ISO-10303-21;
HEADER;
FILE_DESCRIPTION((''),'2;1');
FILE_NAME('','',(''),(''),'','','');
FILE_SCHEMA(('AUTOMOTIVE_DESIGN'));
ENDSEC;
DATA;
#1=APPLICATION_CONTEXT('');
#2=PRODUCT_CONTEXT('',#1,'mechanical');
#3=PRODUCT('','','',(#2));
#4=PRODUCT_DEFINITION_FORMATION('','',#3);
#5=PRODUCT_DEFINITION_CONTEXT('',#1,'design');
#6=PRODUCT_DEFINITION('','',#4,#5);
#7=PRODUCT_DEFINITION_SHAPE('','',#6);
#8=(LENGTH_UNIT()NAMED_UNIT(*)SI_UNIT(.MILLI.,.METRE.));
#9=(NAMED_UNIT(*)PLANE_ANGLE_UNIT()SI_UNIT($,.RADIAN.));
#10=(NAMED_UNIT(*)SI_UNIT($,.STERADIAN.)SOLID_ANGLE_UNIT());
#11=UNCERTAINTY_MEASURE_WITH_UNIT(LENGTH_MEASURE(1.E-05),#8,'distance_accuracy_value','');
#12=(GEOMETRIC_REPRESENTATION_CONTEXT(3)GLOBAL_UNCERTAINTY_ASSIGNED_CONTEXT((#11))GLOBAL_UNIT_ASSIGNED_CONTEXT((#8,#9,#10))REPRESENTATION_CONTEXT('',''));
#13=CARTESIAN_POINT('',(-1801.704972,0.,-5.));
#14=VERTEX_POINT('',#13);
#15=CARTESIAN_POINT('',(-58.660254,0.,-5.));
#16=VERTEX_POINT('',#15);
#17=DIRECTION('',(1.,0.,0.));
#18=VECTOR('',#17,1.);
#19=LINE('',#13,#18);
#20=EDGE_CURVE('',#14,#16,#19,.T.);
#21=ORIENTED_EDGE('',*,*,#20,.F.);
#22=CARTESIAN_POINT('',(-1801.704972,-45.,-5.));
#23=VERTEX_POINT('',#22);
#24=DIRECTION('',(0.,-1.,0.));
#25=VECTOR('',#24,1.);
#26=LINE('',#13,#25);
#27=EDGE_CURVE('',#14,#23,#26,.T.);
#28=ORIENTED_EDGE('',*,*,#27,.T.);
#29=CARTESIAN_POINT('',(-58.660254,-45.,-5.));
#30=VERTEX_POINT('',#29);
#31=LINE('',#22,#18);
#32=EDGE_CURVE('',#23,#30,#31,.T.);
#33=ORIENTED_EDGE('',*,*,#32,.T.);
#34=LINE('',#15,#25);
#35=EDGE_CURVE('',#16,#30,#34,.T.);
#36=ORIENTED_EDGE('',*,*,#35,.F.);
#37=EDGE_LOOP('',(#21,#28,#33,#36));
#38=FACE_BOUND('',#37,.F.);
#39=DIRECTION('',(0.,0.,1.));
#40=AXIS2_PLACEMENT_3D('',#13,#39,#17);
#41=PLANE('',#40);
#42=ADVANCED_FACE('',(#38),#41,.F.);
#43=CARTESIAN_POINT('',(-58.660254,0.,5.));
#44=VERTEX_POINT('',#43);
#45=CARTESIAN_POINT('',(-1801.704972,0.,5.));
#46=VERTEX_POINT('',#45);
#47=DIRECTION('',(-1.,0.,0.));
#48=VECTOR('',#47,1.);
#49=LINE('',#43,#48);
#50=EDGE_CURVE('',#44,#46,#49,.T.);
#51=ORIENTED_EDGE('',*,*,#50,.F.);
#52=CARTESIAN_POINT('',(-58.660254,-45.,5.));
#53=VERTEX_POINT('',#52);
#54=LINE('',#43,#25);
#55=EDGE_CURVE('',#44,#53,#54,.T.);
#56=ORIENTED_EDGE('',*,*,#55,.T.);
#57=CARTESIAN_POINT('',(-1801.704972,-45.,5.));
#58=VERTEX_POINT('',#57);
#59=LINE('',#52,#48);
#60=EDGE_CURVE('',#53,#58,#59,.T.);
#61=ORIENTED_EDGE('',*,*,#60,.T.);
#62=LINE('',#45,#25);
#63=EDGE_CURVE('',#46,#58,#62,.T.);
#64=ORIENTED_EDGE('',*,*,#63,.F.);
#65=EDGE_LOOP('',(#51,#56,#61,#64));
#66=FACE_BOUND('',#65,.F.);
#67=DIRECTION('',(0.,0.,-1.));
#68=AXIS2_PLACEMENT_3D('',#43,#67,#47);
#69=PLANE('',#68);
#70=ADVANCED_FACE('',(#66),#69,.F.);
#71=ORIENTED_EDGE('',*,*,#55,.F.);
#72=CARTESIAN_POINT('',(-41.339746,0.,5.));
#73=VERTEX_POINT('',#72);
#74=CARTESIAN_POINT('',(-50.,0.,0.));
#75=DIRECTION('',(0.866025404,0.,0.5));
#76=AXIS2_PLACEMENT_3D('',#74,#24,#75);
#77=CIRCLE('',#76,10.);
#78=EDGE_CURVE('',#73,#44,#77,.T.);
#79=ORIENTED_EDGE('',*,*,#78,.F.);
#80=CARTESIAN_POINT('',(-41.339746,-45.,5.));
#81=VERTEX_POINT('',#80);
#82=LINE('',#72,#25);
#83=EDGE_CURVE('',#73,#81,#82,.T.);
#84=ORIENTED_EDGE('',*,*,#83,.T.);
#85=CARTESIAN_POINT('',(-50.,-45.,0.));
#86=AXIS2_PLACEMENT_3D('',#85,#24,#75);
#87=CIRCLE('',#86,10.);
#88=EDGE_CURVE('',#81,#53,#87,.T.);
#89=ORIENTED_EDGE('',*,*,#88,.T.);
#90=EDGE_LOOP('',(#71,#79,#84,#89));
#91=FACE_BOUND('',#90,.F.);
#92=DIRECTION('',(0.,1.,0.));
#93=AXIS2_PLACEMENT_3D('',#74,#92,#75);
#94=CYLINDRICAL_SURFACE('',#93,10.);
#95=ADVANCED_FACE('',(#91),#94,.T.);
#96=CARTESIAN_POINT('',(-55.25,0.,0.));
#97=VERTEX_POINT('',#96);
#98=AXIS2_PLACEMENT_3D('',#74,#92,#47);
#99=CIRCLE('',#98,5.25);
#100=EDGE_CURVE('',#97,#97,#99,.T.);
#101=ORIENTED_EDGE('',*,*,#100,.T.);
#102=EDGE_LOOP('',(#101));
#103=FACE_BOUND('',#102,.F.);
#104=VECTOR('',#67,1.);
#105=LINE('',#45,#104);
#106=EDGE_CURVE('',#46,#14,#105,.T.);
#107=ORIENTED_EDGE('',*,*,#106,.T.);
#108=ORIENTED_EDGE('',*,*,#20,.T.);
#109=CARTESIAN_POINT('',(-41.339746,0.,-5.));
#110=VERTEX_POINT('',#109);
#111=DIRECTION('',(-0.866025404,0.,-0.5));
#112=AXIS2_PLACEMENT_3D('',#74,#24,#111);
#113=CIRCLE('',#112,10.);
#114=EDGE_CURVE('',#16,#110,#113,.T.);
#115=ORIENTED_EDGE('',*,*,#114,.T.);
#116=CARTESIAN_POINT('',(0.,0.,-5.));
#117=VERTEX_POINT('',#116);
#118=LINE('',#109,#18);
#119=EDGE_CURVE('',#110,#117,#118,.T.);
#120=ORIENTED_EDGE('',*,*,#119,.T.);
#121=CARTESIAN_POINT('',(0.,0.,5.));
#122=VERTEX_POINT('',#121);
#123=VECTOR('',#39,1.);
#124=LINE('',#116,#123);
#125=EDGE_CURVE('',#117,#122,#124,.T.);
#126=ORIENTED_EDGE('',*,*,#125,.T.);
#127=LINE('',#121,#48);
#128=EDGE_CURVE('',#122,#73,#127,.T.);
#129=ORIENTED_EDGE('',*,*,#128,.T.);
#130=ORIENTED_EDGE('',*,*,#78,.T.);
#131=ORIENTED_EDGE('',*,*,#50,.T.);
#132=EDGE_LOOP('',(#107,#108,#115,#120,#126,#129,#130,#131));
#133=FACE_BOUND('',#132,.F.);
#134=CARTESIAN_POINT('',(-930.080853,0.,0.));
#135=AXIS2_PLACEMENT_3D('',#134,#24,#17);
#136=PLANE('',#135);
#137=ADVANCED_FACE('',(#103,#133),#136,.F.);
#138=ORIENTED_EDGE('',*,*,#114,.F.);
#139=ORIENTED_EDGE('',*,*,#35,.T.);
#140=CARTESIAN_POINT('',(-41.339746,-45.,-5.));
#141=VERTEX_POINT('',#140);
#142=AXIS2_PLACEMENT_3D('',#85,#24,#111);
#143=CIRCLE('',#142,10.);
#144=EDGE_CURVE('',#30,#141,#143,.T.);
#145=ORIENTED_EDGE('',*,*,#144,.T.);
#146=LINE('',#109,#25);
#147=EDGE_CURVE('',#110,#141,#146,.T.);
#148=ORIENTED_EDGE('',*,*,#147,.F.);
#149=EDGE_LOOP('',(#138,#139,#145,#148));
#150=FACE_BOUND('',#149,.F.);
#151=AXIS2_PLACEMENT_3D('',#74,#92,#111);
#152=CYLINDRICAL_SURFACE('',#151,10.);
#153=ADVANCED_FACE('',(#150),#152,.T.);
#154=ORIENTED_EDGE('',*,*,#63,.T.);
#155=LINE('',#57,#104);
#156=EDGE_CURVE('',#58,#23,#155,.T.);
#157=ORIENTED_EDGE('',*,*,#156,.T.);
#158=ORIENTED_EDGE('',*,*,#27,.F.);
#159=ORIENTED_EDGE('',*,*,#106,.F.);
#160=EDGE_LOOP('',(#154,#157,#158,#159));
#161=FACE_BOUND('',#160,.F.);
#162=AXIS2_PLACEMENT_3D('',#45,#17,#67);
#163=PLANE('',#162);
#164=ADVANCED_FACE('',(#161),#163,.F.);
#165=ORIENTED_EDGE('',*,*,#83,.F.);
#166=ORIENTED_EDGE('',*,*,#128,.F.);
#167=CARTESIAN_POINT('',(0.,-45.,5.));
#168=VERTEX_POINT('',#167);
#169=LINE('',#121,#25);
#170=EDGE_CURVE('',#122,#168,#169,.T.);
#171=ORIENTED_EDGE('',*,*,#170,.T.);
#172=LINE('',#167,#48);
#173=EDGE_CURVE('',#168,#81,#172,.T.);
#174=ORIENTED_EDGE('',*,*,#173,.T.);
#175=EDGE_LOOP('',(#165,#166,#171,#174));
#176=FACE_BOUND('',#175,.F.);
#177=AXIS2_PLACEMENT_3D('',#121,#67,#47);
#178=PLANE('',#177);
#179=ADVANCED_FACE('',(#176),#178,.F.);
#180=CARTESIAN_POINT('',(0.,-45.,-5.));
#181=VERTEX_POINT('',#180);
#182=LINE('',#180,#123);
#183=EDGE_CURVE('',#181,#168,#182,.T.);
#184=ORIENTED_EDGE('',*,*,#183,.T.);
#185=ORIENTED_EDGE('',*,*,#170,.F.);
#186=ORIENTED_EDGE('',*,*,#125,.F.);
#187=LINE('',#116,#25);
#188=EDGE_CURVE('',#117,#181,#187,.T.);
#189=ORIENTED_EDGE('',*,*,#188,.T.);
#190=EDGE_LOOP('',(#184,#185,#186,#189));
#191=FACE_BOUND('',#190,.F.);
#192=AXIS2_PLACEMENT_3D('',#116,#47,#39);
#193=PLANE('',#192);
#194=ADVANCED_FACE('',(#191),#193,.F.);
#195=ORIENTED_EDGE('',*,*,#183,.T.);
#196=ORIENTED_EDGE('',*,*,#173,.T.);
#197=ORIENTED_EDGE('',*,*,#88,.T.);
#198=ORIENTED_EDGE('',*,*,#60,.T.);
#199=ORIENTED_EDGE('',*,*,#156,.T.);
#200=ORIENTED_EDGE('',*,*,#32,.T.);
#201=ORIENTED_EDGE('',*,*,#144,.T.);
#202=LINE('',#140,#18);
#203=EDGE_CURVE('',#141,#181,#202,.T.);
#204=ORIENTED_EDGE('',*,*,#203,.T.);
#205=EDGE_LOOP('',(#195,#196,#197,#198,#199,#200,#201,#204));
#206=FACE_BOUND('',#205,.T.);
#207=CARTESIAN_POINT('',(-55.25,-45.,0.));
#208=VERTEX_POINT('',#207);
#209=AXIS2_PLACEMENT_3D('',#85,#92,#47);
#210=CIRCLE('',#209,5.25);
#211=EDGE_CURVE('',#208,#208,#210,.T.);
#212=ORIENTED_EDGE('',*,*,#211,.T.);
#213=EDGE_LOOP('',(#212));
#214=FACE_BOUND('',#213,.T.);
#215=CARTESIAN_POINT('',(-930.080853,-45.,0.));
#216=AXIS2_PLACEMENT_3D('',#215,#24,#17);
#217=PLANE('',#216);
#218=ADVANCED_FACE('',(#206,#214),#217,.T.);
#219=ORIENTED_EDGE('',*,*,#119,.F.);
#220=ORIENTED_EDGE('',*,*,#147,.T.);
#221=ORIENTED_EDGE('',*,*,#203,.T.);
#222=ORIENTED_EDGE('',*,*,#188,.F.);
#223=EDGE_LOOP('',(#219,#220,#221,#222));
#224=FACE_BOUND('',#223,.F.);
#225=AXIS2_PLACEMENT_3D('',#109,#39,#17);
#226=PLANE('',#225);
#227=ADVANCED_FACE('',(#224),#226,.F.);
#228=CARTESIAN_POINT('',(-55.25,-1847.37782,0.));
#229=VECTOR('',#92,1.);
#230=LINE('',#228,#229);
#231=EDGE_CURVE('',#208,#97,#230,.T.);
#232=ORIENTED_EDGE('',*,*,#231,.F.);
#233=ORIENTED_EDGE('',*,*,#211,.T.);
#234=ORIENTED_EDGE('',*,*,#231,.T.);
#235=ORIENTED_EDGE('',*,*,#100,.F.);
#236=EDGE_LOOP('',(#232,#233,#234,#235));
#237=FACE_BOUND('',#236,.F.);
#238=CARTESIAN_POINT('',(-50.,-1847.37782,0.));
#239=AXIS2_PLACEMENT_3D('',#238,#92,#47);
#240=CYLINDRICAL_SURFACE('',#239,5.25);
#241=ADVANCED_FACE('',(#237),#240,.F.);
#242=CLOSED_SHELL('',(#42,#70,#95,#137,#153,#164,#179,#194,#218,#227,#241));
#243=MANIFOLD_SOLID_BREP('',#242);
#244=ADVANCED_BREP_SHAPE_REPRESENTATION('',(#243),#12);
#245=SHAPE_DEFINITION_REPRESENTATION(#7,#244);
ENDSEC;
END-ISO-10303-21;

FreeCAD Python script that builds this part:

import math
import FreeCAD as App
import Part
import Sketcher
from FreeCAD import Vector
Q = App.Units.Quantity

doc = App.newDocument("Part")
body = doc.addObject("PartDesign::Body", "Body")

# Sketch on XZ plane
sketch1 = body.newObject("Sketcher::SketchObject", "Sketch")
sketch1.AttachmentSupport = (doc.getObject("XZ_Plane"), [""])
sketch1.MapMode = "FlatFace"
sketch1.addGeometry([
    Part.LineSegment(Vector(-58.660254, 5, 0), Vector(-1801.704972, 5, 0)),  # 0
    Part.LineSegment(Vector(-1801.704972, 5, 0), Vector(-1801.704972, -5, 0)),  # 1
    Part.LineSegment(Vector(-1801.704972, -5, 0), Vector(-58.660254, -5, 0)),  # 2
    Part.ArcOfCircle(Part.Circle(Vector(-50, 0, 0), Vector(0, 0, 1), 10), math.radians(-150), math.radians(-30)),  # 3
    Part.LineSegment(Vector(-41.339746, -5, 0), Vector(0, -5, 0)),  # 4
    Part.LineSegment(Vector(0, -5, 0), Vector(0, 5, 0)),  # 5
    Part.LineSegment(Vector(0, 5, 0), Vector(-41.339746, 5, 0)),  # 6
    Part.ArcOfCircle(Part.Circle(Vector(-50, 0, 0), Vector(0, 0, 1), 10), math.radians(30), math.radians(150)),  # 7
], False)
sketch1.addConstraint([
    Sketcher.Constraint("Coincident", 0, 2, 1, 1),
    Sketcher.Constraint("Coincident", 1, 2, 2, 1),
    Sketcher.Constraint("Coincident", 2, 2, 3, 1),
    Sketcher.Constraint("Coincident", 3, 2, 4, 1),
    Sketcher.Constraint("Coincident", 4, 2, 5, 1),
    Sketcher.Constraint("Coincident", 5, 2, 6, 1),
    Sketcher.Constraint("Coincident", 6, 2, 7, 1),
    Sketcher.Constraint("Coincident", 7, 2, 0, 1),
    Sketcher.Constraint("Horizontal", 0),
    Sketcher.Constraint("Vertical", 1),
    Sketcher.Constraint("Horizontal", 2),
    Sketcher.Constraint("Horizontal", 4),
    Sketcher.Constraint("Vertical", 5),
    Sketcher.Constraint("Horizontal", 6),
    Sketcher.Constraint("Coincident", 7, 3, 3, 3),
    Sketcher.Constraint("Equal", 3, 7),
    Sketcher.Constraint("Symmetric", 4, 2, 5, 2, -1, 1),
    Sketcher.Constraint("Symmetric", 2, 2, 7, 2, -1),
    Sketcher.Constraint("Horizontal", 2, 2, 3, 2),
    Sketcher.Constraint("Radius", 3, Q("10 mm")),
    Sketcher.Constraint("DistanceY", 1, 2, 1, 1, Q("10 mm")),
    Sketcher.Constraint("DistanceX", 3, 3, -1, 1, Q("50 mm")),
    Sketcher.Constraint("DistanceX", 0, 2, 0, 1, Q("1743.044718 mm")),
])
pad1 = body.newObject("PartDesign::Pad", "Pad")
pad1.Profile = sketch1
pad1.Length = 45

# Sketch on XZ plane
sketch2 = body.newObject("Sketcher::SketchObject", "Sketch001")
sketch2.AttachmentSupport = (doc.getObject("XZ_Plane"), [""])
sketch2.MapMode = "FlatFace"
sketch2.AttachmentOffset = App.Placement(Vector(0, 0, 45), App.Rotation())
sketch2.addGeometry(Part.Circle(Vector(-50, 0, 0), Vector(0, 0, 1), 5.25), False)
sketch2.addConstraint([
    Sketcher.Constraint("PointOnObject", 0, 3, -1),
    Sketcher.Constraint("Diameter", 0, Q("10.5 mm")),
    Sketcher.Constraint("DistanceX", 0, 3, -1, 1, Q("50 mm")),
])
doc.recompute()
hole = body.newObject("PartDesign::Hole", "Hole")
hole.Profile = sketch2
hole.ThreadType = "None"
hole.Diameter = 10.5
hole.DepthType = "ThroughAll"

doc.recompute()
